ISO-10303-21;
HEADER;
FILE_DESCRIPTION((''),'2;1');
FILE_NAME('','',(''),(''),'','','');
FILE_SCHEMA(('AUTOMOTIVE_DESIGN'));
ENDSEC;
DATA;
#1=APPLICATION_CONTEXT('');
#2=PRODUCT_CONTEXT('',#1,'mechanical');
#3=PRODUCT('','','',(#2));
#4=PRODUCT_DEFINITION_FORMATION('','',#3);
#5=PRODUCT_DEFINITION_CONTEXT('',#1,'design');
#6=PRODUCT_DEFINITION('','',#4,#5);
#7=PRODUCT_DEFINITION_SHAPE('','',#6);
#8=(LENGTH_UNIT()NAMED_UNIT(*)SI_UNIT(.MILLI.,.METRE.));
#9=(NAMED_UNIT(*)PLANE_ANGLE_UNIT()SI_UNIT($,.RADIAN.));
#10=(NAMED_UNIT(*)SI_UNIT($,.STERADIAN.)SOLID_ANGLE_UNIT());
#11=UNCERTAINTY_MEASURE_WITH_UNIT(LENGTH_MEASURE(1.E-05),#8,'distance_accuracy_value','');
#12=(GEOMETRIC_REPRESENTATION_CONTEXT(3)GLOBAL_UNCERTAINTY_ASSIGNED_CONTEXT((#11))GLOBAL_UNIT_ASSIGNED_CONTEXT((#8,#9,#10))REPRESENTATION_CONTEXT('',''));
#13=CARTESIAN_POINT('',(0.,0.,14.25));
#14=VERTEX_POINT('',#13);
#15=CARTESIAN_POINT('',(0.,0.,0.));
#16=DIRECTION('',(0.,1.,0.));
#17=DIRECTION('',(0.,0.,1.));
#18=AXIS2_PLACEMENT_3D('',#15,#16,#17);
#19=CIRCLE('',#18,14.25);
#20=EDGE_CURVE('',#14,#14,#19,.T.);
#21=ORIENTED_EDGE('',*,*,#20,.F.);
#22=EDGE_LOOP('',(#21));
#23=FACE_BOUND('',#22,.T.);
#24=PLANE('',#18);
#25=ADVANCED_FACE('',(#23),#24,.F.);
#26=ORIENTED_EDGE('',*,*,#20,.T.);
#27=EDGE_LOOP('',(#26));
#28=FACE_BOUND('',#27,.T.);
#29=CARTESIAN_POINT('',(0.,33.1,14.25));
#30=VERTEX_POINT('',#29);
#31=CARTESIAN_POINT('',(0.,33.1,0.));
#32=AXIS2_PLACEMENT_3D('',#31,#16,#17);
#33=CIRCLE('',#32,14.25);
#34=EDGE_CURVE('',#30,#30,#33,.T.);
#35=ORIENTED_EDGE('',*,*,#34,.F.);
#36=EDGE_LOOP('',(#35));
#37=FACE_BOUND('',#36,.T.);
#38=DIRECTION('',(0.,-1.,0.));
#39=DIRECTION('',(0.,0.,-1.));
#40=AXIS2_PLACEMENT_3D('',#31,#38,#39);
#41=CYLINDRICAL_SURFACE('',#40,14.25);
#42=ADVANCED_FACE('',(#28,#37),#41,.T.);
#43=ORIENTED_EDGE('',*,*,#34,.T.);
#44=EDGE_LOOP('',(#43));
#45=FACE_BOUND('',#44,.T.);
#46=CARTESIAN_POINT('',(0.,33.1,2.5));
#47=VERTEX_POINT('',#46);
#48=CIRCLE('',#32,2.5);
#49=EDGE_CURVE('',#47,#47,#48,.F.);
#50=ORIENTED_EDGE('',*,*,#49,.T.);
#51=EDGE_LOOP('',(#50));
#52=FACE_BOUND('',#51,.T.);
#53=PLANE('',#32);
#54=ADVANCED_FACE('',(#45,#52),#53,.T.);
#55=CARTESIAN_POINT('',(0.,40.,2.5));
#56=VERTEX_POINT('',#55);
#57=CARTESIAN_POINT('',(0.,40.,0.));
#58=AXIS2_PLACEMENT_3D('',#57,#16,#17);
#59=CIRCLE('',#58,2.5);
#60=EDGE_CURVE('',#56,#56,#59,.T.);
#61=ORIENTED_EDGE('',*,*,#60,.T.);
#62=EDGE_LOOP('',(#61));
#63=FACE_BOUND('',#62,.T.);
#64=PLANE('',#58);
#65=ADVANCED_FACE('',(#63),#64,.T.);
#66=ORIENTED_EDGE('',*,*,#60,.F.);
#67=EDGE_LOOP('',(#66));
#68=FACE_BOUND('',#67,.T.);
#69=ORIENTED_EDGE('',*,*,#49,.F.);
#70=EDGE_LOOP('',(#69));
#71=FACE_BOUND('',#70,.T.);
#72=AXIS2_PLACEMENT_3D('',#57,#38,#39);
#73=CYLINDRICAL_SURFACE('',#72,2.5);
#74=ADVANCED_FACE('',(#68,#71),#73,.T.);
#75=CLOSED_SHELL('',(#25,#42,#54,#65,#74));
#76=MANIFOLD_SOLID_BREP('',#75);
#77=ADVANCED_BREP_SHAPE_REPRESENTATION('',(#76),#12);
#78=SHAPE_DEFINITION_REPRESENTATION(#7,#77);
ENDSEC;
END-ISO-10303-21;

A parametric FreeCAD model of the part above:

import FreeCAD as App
import Part
import Sketcher
Q = App.Units.Quantity

doc = App.newDocument("Part")
params = doc.addObject("Spreadsheet::Sheet", "Params")
for row, (alias, value) in enumerate([
    ("sketch1_diameter", "28.5 mm"),
    ("pad1_length", "33.1 mm"),
    ("sketch2_diameter", "5 mm"),
    ("pad2_length", "40 mm"),
], start=1):
    params.set(f"A{row}", alias)
    params.set(f"B{row}", "=" + value)
    params.setAlias(f"B{row}", alias)

body = doc.addObject("PartDesign::Body", "Body")

# Sketch on XZ plane
sketch1 = body.newObject("Sketcher::SketchObject", "Sketch")
sketch1.AttachmentSupport = (doc.getObject("XZ_Plane"), [""])
sketch1.MapMode = "FlatFace"
sketch1.addGeometry(Part.Circle(App.Vector(0, 0, 0), App.Vector(0, 0, 1), 14), False)
sketch1.addConstraint([
    Sketcher.Constraint("Coincident", 0, 3, -1, 1),
    Sketcher.Constraint("Diameter", 0, Q("28.5 mm")),
])
sketch1.setExpression("Constraints[1]", "Params.sketch1_diameter")
pad1 = body.newObject("PartDesign::Pad", "Pad")
pad1.Profile = sketch1
pad1.setExpression("Length", "Params.pad1_length")
pad1.Reversed = True

# Sketch on XZ plane
sketch2 = body.newObject("Sketcher::SketchObject", "Sketch001")
sketch2.AttachmentSupport = (doc.getObject("XZ_Plane"), [""])
sketch2.MapMode = "FlatFace"
sketch2.addGeometry(Part.Circle(App.Vector(0, 0, 0), App.Vector(0, 0, 1), 2.5), False)
sketch2.addConstraint([
    Sketcher.Constraint("Coincident", 0, 3, -1, 1),
    Sketcher.Constraint("Diameter", 0, Q("5 mm")),
])
sketch2.setExpression("Constraints[1]", "Params.sketch2_diameter")
pad2 = body.newObject("PartDesign::Pad", "Pad001")
pad2.Profile = sketch2
pad2.setExpression("Length", "Params.pad2_length")
pad2.Reversed = True

doc.recompute()
